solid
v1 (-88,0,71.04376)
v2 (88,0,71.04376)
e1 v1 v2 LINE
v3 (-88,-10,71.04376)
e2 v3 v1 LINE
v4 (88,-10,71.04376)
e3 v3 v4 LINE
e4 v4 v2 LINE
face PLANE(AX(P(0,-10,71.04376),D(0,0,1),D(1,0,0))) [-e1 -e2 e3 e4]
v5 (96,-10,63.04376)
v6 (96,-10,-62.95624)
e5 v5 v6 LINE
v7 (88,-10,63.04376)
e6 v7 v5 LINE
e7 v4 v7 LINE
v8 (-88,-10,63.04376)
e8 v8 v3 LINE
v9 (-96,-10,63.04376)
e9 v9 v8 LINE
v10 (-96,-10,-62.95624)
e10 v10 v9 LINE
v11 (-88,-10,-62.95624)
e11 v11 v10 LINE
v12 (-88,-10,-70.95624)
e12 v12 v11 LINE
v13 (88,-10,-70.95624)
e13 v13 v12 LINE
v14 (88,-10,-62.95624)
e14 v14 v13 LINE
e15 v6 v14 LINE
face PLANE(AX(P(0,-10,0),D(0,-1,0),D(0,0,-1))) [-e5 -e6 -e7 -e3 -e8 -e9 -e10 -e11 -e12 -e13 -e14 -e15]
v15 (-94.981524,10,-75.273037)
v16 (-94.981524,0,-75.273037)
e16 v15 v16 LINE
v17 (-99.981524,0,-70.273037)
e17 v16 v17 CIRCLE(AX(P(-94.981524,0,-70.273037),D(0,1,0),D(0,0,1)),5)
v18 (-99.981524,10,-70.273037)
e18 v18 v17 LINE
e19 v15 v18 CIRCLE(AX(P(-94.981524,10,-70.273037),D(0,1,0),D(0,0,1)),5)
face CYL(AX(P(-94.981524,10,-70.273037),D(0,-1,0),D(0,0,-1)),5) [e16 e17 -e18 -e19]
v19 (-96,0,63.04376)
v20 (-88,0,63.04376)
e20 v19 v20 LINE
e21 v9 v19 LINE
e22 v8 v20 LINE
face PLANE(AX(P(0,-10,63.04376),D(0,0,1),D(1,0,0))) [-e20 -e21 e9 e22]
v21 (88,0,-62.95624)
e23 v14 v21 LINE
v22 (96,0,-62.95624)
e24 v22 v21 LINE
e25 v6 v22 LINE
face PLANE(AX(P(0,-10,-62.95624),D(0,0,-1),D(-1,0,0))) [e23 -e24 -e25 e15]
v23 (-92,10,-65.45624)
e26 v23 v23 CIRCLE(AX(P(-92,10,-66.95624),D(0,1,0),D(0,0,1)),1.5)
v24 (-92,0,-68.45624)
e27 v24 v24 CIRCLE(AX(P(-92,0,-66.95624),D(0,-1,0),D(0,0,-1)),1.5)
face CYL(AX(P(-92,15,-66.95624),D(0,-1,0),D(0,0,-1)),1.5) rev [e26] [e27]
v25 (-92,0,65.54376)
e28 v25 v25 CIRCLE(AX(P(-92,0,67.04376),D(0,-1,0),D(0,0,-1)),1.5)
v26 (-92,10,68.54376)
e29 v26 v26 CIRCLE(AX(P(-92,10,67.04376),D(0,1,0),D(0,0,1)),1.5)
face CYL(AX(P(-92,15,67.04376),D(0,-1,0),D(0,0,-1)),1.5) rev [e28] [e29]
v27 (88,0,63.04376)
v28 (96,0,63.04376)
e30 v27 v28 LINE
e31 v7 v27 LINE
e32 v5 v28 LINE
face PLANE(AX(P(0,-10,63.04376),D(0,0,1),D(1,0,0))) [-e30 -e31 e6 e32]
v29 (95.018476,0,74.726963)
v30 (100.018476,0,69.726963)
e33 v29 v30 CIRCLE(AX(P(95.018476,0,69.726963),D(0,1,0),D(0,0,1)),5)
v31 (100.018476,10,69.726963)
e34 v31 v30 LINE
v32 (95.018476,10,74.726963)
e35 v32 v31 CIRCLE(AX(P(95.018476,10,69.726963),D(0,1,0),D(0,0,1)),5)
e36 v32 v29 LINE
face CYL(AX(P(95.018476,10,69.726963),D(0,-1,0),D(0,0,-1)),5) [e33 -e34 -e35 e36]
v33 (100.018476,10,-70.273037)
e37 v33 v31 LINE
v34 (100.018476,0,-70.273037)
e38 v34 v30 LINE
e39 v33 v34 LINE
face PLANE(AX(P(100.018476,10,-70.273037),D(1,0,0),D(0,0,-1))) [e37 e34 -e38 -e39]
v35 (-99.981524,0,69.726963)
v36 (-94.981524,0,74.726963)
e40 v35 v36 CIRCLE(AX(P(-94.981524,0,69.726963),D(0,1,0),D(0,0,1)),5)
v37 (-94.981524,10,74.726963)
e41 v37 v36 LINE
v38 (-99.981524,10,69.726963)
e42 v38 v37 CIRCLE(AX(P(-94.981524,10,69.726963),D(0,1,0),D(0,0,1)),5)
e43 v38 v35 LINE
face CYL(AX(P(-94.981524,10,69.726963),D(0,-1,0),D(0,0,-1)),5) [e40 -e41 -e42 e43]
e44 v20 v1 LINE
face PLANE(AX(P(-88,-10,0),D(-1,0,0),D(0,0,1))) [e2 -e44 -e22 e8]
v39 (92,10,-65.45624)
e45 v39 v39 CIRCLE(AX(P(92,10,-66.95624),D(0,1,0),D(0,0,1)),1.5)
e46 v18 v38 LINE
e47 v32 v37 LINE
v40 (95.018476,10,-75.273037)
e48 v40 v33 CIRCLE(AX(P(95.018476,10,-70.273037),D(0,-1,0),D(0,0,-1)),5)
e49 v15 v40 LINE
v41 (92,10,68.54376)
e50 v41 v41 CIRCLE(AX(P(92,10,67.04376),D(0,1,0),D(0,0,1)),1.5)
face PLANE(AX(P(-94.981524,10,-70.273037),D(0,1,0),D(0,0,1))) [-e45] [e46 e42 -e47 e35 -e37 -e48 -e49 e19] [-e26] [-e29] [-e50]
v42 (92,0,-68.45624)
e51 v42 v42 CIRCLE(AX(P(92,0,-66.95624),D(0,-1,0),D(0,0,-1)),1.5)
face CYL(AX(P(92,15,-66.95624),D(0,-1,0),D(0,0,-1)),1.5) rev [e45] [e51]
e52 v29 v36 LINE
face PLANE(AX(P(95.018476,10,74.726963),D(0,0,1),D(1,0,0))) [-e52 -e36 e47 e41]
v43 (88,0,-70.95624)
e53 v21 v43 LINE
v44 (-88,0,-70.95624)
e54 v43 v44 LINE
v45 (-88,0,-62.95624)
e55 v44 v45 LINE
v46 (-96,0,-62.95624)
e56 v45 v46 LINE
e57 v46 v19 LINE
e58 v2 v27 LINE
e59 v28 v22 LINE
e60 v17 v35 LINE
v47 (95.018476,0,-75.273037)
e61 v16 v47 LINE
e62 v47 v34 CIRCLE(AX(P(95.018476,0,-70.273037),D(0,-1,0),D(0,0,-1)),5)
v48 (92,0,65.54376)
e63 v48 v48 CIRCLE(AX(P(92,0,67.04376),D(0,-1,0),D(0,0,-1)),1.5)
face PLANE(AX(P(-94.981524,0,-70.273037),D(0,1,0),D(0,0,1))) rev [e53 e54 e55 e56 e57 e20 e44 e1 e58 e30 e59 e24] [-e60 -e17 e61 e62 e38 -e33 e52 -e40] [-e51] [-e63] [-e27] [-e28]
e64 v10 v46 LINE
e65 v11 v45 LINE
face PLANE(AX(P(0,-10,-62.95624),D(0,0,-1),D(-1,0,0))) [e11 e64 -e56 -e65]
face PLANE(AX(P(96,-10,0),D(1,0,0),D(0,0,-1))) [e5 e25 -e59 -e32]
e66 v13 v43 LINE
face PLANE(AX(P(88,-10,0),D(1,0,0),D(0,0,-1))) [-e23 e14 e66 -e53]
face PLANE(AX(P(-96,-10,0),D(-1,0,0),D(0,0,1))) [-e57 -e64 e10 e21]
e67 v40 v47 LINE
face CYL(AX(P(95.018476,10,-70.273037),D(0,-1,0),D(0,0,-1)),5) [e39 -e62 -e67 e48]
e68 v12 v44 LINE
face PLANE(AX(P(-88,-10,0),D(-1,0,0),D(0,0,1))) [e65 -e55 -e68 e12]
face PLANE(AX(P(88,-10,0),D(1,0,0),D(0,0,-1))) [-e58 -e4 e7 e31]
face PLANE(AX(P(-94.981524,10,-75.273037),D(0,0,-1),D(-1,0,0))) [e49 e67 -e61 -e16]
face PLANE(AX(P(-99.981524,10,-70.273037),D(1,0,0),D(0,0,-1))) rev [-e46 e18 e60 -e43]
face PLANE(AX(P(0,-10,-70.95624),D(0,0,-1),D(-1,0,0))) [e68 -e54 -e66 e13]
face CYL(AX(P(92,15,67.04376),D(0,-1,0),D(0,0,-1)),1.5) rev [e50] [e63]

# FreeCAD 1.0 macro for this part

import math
import FreeCAD as App
import Part
import Sketcher

V = App.Vector
Q = App.Units.Quantity

doc = App.newDocument("Part")
body = doc.addObject("PartDesign::Body", "Body")

# Sketch on XZ plane
sketch1 = body.newObject("Sketcher::SketchObject", "Sketch")
sketch1.AttachmentSupport = (doc.getObject("XZ_Plane"), [""])
sketch1.MapMode = "FlatFace"
sketch1.addGeometry([
    Part.LineSegment(V(95, -75, 0), V(-95, -75, 0)),  # 0
    Part.ArcOfCircle(Part.Circle(V(-95, -70, 0), V(0, 0, 1), 5), math.radians(180), math.radians(270)),  # 1
    Part.LineSegment(V(-100, -70, 0), V(-100, 70, 0)),  # 2
    Part.ArcOfCircle(Part.Circle(V(-95, 70, 0), V(0, 0, 1), 5), math.radians(90), math.radians(180)),  # 3
    Part.LineSegment(V(-95, 75, 0), V(95, 75, 0)),  # 4
    Part.ArcOfCircle(Part.Circle(V(95, 70, 0), V(0, 0, 1), 5), math.radians(0), math.radians(90)),  # 5
    Part.LineSegment(V(100, 70, 0), V(100, -70, 0)),  # 6
    Part.ArcOfCircle(Part.Circle(V(95, -70, 0), V(0, 0, 1), 5), math.radians(-90), math.radians(0)),  # 7
], False)
sketch1.addConstraint([
    Sketcher.Constraint("Tangent", 0, 2, 1, 2),
    Sketcher.Constraint("Tangent", 1, 1, 2, 1),
    Sketcher.Constraint("Tangent", 2, 2, 3, 2),
    Sketcher.Constraint("Tangent", 3, 1, 4, 1),
    Sketcher.Constraint("Tangent", 4, 2, 5, 2),
    Sketcher.Constraint("Tangent", 5, 1, 6, 1),
    Sketcher.Constraint("Tangent", 6, 2, 7, 2),
    Sketcher.Constraint("Tangent", 7, 1, 0, 1),
    Sketcher.Constraint("Horizontal", 0),
    Sketcher.Constraint("Vertical", 2),
    Sketcher.Constraint("Horizontal", 4),
    Sketcher.Constraint("Vertical", 6),
    Sketcher.Constraint("Equal", 1, 3),
    Sketcher.Constraint("Equal", 3, 5),
    Sketcher.Constraint("Equal", 5, 7),
    Sketcher.Constraint("Radius", 1, Q("5 mm")),
    Sketcher.Constraint("DistanceX", 0, 2, 0, 1, Q("190 mm")),
    Sketcher.Constraint("DistanceY", 2, 1, 2, 2, Q("140 mm")),
    Sketcher.Constraint("DistanceX", 1, 3, -1, 1, Q("94.981524 mm")),
    Sketcher.Constraint("DistanceY", 1, 3, -1, 1, Q("70.273037 mm")),
])
pad1 = body.newObject("PartDesign::Pad", "Pad")
pad1.Profile = sketch1
pad1.Length = 10
pad1.Reversed = True

# Sketch on XZ plane
sketch2 = body.newObject("Sketcher::SketchObject", "Sketch001")
sketch2.AttachmentSupport = (doc.getObject("XZ_Plane"), [""])
sketch2.MapMode = "FlatFace"
sketch2.addGeometry([
    Part.LineSegment(V(-88, 63, 0), V(-96, 63, 0)),  # 0
    Part.LineSegment(V(-96, 63, 0), V(-96, -63, 0)),  # 1
    Part.LineSegment(V(-96, -63, 0), V(-88, -63, 0)),  # 2
    Part.LineSegment(V(-88, -63, 0), V(-88, -71, 0)),  # 3
    Part.LineSegment(V(-88, -71, 0), V(88, -71, 0)),  # 4
    Part.LineSegment(V(88, -71, 0), V(88, -63, 0)),  # 5
    Part.LineSegment(V(88, -63, 0), V(96, -63, 0)),  # 6
    Part.LineSegment(V(96, -63, 0), V(96, 63, 0)),  # 7
    Part.LineSegment(V(96, 63, 0), V(88, 63, 0)),  # 8
    Part.LineSegment(V(88, 63, 0), V(88, 71, 0)),  # 9
    Part.LineSegment(V(88, 71, 0), V(-88, 71, 0)),  # 10
    Part.LineSegment(V(-88, 71, 0), V(-88, 63, 0)),  # 11
], False)
sketch2.addConstraint([
    Sketcher.Constraint("Coincident", 0, 2, 1, 1),
    Sketcher.Constraint("Coincident", 1, 2, 2, 1),
    Sketcher.Constraint("Coincident", 2, 2, 3, 1),
    Sketcher.Constraint("Coincident", 3, 2, 4, 1),
    Sketcher.Constraint("Coincident", 4, 2, 5, 1),
    Sketcher.Constraint("Coincident", 5, 2, 6, 1),
    Sketcher.Constraint("Coincident", 6, 2, 7, 1),
    Sketcher.Constraint("Coincident", 7, 2, 8, 1),
    Sketcher.Constraint("Coincident", 8, 2, 9, 1),
    Sketcher.Constraint("Coincident", 9, 2, 10, 1),
    Sketcher.Constraint("Coincident", 10, 2, 11, 1),
    Sketcher.Constraint("Coincident", 11, 2, 0, 1),
    Sketcher.Constraint("Horizontal", 0),
    Sketcher.Constraint("Vertical", 1),
    Sketcher.Constraint("Horizontal", 2),
    Sketcher.Constraint("Vertical", 3),
    Sketcher.Constraint("Horizontal", 4),
    Sketcher.Constraint("Vertical", 5),
    Sketcher.Constraint("Horizontal", 6),
    Sketcher.Constraint("Vertical", 7),
    Sketcher.Constraint("Horizontal", 8),
    Sketcher.Constraint("Vertical", 9),
    Sketcher.Constraint("Horizontal", 10),
    Sketcher.Constraint("Vertical", 11),
    Sketcher.Constraint("Symmetric", 2, 2, 5, 2, -2),
    Sketcher.Constraint("Symmetric", 0, 2, 7, 2, -2),
    Sketcher.Constraint("Vertical", 5, 2, 8, 2),
    Sketcher.Constraint("Vertical", 3, 2, 10, 2),
    Sketcher.Constraint("Equal", 8, 3),
    Sketcher.Constraint("Equal", 5, 9),
    Sketcher.Constraint("DistanceX", 0, 2, 0, 1, Q("8 mm")),
    Sketcher.Constraint("DistanceX", 4, 1, 4, 2, Q("176 mm")),
    Sketcher.Constraint("DistanceY", 1, 2, 1, 1, Q("126 mm")),
    Sketcher.Constraint("DistanceY", -1, 1, 0, 2, Q("63.04376 mm")),
])
pad2 = body.newObject("PartDesign::Pad", "Pad001")
pad2.Profile = sketch2
pad2.Length = 10

# Sketch on XZ plane
sketch3 = body.newObject("Sketcher::SketchObject", "Sketch002")
sketch3.AttachmentSupport = (doc.getObject("XZ_Plane"), [""])
sketch3.MapMode = "FlatFace"
sketch3.addGeometry([
    Part.Circle(V(-92, -67, 0), V(0, 0, 1), 1.5),
    Part.Circle(V(-92, 67, 0), V(0, 0, 1), 1.5),
    Part.Circle(V(92, 67, 0), V(0, 0, 1), 1.5),
    Part.Circle(V(92, -67, 0), V(0, 0, 1), 1.5),
], False)
sketch3.addConstraint([
    Sketcher.Constraint("Equal", 0, 1),
    Sketcher.Constraint("Equal", 1, 2),
    Sketcher.Constraint("Equal", 2, 3),
    Sketcher.Constraint("Symmetric", 1, 3, 2, 3, -2),
    Sketcher.Constraint("Symmetric", 0, 3, 3, 3, -2),
    Sketcher.Constraint("Vertical", 0, 3, 1, 3),
    Sketcher.Constraint("Diameter", 0, Q("3 mm")),
    Sketcher.Constraint("DistanceX", 0, 3, -1, 1, Q("92 mm")),
    Sketcher.Constraint("DistanceY", 0, 3, 1, 3, Q("134 mm")),
    Sketcher.Constraint("DistanceY", 0, 3, -1, 1, Q("66.95624 mm")),
])
pocket1 = body.newObject("PartDesign::Pocket", "Pocket")
pocket1.Profile = sketch3
pocket1.Length = 15

doc.recompute()
